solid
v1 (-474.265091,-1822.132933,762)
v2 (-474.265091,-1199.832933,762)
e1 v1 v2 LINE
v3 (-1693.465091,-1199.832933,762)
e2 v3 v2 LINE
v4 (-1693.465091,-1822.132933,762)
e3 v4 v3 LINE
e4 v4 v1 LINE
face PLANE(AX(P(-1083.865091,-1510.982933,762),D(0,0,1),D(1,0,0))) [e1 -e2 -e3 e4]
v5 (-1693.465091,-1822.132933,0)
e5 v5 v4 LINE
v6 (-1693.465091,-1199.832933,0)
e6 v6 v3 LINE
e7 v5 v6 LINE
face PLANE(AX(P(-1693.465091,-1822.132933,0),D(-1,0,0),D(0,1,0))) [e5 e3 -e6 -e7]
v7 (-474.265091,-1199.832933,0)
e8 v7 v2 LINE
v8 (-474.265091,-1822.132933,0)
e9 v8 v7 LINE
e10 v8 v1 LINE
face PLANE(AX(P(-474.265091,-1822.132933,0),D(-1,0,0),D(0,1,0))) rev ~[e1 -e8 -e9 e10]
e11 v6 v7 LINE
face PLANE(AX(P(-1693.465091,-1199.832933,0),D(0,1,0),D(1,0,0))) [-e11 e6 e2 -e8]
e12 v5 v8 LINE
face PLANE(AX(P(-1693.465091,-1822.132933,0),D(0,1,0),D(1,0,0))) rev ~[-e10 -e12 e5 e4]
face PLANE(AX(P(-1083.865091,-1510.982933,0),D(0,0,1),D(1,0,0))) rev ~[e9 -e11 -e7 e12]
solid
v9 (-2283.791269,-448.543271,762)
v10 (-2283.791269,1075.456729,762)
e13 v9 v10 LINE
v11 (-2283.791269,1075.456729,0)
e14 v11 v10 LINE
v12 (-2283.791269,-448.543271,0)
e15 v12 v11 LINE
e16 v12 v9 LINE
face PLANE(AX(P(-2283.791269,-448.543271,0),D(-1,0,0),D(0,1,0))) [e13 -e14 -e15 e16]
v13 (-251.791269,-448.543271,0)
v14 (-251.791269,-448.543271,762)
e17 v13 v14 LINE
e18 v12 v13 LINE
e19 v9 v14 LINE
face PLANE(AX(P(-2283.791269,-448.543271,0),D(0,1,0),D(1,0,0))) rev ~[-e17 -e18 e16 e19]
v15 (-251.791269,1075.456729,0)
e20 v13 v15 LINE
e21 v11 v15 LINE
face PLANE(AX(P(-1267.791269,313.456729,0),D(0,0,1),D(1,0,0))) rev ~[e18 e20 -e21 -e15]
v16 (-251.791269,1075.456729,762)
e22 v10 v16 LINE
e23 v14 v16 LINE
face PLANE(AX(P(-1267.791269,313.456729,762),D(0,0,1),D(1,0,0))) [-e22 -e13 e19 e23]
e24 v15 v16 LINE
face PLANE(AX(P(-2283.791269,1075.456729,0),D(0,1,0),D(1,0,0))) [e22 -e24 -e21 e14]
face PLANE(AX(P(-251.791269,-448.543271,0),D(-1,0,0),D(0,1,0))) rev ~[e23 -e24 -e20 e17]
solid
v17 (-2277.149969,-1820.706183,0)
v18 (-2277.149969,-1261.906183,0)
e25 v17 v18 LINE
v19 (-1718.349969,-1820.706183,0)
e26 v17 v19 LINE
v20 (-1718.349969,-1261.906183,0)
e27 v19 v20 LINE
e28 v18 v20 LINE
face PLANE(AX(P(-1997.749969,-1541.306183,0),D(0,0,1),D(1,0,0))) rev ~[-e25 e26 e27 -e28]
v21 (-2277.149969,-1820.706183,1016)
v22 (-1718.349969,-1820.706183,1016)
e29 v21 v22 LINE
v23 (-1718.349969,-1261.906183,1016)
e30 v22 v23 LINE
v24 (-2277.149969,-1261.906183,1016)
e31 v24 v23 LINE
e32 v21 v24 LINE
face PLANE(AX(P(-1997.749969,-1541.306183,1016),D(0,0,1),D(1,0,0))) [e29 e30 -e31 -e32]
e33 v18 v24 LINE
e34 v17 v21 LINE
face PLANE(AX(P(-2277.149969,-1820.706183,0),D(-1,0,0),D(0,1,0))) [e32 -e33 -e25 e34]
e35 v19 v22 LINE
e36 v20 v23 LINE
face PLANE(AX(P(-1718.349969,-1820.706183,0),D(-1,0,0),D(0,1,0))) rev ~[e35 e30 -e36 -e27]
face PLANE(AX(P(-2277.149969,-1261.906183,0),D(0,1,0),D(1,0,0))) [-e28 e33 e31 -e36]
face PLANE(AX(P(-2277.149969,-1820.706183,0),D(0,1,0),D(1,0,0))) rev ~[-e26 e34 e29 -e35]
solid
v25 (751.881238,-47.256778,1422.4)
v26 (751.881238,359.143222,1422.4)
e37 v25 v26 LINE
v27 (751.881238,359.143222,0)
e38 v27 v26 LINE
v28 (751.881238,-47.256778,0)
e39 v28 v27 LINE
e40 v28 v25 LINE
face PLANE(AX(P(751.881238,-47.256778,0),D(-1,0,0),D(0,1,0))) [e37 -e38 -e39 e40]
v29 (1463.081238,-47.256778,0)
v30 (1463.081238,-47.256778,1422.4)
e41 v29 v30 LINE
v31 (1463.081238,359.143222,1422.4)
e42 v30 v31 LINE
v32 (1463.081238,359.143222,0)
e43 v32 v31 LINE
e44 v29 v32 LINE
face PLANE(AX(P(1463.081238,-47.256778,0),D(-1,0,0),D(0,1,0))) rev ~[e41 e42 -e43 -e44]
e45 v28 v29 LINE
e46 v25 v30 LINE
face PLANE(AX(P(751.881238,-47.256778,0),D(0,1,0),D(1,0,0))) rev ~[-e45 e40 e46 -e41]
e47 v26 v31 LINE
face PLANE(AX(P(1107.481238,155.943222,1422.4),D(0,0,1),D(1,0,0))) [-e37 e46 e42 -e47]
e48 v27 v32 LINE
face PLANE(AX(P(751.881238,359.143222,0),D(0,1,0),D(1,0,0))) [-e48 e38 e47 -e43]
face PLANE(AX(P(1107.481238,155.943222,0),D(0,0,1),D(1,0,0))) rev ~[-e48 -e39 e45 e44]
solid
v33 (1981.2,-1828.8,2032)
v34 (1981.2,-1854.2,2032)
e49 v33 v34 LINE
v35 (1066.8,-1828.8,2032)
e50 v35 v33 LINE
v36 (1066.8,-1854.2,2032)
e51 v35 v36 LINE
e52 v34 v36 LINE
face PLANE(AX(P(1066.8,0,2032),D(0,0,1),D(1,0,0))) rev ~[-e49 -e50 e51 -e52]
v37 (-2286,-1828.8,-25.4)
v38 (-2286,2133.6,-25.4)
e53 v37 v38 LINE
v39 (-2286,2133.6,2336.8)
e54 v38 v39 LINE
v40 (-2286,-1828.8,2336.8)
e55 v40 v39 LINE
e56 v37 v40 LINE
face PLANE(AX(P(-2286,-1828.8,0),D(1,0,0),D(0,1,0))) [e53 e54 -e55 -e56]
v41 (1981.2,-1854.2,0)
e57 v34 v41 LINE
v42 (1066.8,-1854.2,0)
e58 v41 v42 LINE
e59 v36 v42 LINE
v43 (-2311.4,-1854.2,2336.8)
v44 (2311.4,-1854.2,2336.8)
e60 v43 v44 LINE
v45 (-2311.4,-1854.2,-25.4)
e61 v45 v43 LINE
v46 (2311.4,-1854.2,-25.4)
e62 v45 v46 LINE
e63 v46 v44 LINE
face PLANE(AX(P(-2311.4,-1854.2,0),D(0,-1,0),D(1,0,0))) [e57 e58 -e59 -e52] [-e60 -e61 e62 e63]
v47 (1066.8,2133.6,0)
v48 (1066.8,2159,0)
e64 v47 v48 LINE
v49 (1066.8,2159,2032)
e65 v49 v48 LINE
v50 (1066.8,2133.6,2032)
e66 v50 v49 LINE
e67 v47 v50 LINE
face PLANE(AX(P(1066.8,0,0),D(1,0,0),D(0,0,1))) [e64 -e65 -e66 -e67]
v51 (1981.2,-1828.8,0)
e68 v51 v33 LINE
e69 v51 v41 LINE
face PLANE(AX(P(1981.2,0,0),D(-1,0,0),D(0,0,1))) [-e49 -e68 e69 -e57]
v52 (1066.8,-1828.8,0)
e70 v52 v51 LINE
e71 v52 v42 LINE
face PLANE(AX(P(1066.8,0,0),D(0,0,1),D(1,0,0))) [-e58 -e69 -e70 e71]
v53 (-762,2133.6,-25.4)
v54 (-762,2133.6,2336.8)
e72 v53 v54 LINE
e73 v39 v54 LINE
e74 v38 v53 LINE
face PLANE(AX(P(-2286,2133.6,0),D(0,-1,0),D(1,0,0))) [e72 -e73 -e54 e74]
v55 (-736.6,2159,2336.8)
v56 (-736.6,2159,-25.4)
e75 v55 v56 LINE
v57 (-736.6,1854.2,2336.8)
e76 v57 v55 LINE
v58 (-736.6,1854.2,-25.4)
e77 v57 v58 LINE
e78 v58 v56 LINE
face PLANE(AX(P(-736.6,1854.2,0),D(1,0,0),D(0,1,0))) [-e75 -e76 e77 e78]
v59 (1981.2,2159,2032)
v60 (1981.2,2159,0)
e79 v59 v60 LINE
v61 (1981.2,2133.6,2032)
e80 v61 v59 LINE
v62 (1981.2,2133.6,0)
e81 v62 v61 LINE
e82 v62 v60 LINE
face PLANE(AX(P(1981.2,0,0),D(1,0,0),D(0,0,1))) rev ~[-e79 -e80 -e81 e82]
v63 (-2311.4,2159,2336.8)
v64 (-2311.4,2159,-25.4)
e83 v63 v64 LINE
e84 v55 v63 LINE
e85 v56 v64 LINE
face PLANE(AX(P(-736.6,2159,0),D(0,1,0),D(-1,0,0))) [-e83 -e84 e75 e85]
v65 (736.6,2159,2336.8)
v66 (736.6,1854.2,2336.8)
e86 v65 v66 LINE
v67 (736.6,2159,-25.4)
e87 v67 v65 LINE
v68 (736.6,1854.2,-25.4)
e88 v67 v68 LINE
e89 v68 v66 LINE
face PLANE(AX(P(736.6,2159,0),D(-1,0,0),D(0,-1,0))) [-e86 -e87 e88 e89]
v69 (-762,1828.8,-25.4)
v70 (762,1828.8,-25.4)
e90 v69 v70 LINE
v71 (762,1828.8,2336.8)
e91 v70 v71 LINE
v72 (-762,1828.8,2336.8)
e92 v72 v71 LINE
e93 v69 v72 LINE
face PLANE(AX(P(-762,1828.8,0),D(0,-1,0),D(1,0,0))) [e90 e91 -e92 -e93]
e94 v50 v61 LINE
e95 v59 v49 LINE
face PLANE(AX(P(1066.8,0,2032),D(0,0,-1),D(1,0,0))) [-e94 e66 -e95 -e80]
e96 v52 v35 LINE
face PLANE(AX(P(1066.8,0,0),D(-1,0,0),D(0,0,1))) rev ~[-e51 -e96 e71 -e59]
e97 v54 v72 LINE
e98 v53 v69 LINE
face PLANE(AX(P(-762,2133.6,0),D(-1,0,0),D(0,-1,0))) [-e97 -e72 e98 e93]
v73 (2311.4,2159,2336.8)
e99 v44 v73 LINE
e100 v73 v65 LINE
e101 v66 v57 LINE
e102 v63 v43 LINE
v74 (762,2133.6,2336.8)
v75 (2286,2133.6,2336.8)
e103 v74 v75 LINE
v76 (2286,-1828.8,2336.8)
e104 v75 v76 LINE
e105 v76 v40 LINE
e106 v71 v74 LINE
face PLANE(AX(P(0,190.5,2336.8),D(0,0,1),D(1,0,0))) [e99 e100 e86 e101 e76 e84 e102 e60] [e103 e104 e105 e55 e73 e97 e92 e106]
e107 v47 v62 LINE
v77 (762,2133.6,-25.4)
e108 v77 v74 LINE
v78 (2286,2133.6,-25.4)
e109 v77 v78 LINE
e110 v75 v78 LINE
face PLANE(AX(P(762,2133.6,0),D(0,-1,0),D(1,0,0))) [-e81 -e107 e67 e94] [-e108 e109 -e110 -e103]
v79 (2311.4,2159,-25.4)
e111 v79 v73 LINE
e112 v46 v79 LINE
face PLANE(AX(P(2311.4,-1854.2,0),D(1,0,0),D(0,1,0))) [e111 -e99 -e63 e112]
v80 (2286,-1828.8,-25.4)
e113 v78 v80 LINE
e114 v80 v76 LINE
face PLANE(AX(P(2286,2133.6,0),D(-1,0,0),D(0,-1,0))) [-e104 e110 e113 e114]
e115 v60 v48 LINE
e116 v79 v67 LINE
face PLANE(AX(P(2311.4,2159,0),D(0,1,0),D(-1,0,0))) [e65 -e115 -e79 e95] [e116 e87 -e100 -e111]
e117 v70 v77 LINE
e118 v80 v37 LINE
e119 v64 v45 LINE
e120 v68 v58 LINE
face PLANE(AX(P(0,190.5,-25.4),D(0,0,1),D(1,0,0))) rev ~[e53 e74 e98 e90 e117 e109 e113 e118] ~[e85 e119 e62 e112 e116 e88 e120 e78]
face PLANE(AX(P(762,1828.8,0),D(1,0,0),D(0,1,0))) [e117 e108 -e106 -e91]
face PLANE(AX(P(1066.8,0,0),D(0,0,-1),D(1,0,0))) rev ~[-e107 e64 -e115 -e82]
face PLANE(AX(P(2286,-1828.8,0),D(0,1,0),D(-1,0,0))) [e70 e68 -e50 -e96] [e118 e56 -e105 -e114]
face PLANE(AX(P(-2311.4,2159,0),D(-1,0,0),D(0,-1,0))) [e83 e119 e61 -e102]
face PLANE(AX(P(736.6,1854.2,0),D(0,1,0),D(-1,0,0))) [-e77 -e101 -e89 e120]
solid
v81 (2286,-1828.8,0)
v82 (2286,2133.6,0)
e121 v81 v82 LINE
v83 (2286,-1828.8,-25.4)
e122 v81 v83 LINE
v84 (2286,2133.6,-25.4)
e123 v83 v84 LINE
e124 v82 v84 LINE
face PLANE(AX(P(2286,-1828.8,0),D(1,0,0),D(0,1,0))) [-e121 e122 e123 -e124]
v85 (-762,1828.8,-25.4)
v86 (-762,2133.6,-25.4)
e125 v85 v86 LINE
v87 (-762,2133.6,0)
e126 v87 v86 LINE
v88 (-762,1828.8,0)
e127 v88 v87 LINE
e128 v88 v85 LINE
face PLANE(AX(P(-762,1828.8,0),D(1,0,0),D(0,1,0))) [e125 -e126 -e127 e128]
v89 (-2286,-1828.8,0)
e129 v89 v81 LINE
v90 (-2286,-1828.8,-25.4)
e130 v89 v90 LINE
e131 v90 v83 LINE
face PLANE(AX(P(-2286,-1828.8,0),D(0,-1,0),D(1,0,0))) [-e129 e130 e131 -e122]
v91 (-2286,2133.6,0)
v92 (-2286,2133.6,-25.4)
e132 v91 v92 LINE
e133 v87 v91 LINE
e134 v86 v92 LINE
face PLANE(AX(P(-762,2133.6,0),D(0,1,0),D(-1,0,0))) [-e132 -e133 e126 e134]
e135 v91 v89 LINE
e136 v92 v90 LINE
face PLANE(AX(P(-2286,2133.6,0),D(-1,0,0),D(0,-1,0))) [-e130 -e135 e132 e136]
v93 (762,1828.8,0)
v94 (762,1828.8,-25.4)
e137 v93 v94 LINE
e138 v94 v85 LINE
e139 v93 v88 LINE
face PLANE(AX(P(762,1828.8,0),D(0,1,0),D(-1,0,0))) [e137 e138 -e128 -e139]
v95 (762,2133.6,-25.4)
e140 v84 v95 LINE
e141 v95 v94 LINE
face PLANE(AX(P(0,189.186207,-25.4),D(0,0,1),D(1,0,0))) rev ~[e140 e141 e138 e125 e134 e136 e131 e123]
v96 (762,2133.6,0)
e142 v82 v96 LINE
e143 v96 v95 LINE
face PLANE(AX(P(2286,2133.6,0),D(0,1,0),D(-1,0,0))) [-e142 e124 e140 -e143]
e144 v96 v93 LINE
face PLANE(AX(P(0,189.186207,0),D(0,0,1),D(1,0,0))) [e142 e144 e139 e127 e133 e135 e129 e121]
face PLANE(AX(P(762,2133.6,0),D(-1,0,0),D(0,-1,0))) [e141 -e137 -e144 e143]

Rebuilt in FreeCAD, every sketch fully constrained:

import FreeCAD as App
import Part
import Sketcher

V = App.Vector
Q = App.Units.Quantity


def add_polygon(sketch, points):
    """Adds a closed chain of lines whose ends are joined by coincident constraints."""
    first, n = sketch.GeometryCount, len(points)
    for a, b in zip(points, points[1:] + points[:1]):
        sketch.addGeometry(Part.LineSegment(App.Vector(*a, 0), App.Vector(*b, 0)), False)
    for i in range(n):
        sketch.addConstraint(Sketcher.Constraint("Coincident", first + i, 2, first + (i + 1) % n, 1))

doc = App.newDocument("Part")
body = doc.addObject("PartDesign::Body", "Body")

sketch1 = body.newObject("Sketcher::SketchObject", "Sketch")
sketch1.AttachmentSupport = (doc.getObject("XY_Plane"), [""])
sketch1.MapMode = "FlatFace"
add_polygon(sketch1, [(-2286, -1829), (2286, -1829), (2286, 2134), (762, 2134), (762, 1829), (-762, 1829), (-762, 2134), (-2286, 2134)])
sketch1.addConstraint([
    Sketcher.Constraint("Horizontal", 0),
    Sketcher.Constraint("Vertical", 1),
    Sketcher.Constraint("Horizontal", 2),
    Sketcher.Constraint("Vertical", 3),
    Sketcher.Constraint("Horizontal", 4),
    Sketcher.Constraint("Vertical", 5),
    Sketcher.Constraint("Horizontal", 6),
    Sketcher.Constraint("Vertical", 7),
    Sketcher.Constraint("Symmetric", 2, 2, 5, 2, -2),
    Sketcher.Constraint("Equal", 2, 4),
    Sketcher.Constraint("Equal", 4, 6),
    Sketcher.Constraint("DistanceX", 0, 1, 0, 2, Q("180 in")),
    Sketcher.Constraint("DistanceY", 1, 1, 1, 2, Q("156 in")),
    Sketcher.Constraint("DistanceY", 3, 2, 3, 1, Q("12 in")),
    Sketcher.Constraint("DistanceY", 0, 2, -1, 1, Q("72 in")),
])
pad1 = body.newObject("PartDesign::Pad", "Pad")
pad1.Profile = sketch1
pad1.Length = Q("1 in")
pad1.Reversed = True
body2 = doc.addObject("PartDesign::Body", "Body001")

sketch2 = body2.newObject("Sketcher::SketchObject", "Sketch001")
sketch2.AttachmentSupport = (doc.getObject("XY_Plane001"), [""])
sketch2.MapMode = "FlatFace"
add_polygon(sketch2, [(-2311, 2159), (-2311, -1854), (2311, -1854), (2311, 2159), (737, 2159), (737, 1854), (-737, 1854), (-737, 2159)])
add_polygon(sketch2, [(2286, 2134), (2286, -1829), (-2286, -1829), (-2286, 2134), (-762, 2134), (-762, 1829), (762, 1829), (762, 2134)])
sketch2.addConstraint([
    Sketcher.Constraint("Vertical", 0),
    Sketcher.Constraint("Horizontal", 1),
    Sketcher.Constraint("Vertical", 2),
    Sketcher.Constraint("Horizontal", 3),
    Sketcher.Constraint("Vertical", 4),
    Sketcher.Constraint("Horizontal", 5),
    Sketcher.Constraint("Vertical", 6),
    Sketcher.Constraint("Horizontal", 7),
    Sketcher.Constraint("Vertical", 8),
    Sketcher.Constraint("Horizontal", 9),
    Sketcher.Constraint("Vertical", 10),
    Sketcher.Constraint("Horizontal", 11),
    Sketcher.Constraint("Vertical", 12),
    Sketcher.Constraint("Horizontal", 13),
    Sketcher.Constraint("Vertical", 14),
    Sketcher.Constraint("Horizontal", 15),
    Sketcher.Constraint("Symmetric", 3, 2, 6, 2, -2),
    Sketcher.Constraint("Symmetric", 11, 2, 14, 2, -2),
    Sketcher.Constraint("Equal", 3, 7),
    Sketcher.Constraint("Equal", 11, 13),
    Sketcher.Constraint("Equal", 13, 15),
    Sketcher.Constraint("Equal", 6, 12),
    Sketcher.Constraint("DistanceX", 1, 1, 1, 2, Q("182 in")),
    Sketcher.Constraint("DistanceX", 3, 2, 3, 1, Q("62 in")),
    Sketcher.Constraint("DistanceX", 9, 2, 9, 1, Q("180 in")),
    Sketcher.Constraint("DistanceY", 0, 2, 0, 1, Q("158 in")),
    Sketcher.Constraint("DistanceY", 4, 2, 4, 1, Q("12 in")),
    Sketcher.Constraint("DistanceY", 8, 2, 8, 1, Q("156 in")),
    Sketcher.Constraint("DistanceY", 0, 2, -1, 1, Q("73 in")),
    Sketcher.Constraint("DistanceY", 8, 2, -1, 1, Q("72 in")),
])
pad2 = body2.newObject("PartDesign::Pad", "Pad001")
pad2.Profile = sketch2
pad2.Type = "TwoLengths"
pad2.Length = Q("92 in")
pad2.Length2 = Q("1 in")

sketch3 = body2.newObject("Sketcher::SketchObject", "Sketch002")
sketch3.AttachmentSupport = (doc.getObject("XZ_Plane001"), [""])
sketch3.MapMode = "FlatFace"
add_polygon(sketch3, [(1067, 2032), (1067, 0), (1981, 0), (1981, 2032)])
sketch3.addConstraint([
    Sketcher.Constraint("Vertical", 0),
    Sketcher.Constraint("Horizontal", 1),
    Sketcher.Constraint("Vertical", 2),
    Sketcher.Constraint("Horizontal", 3),
    Sketcher.Constraint("PointOnObject", 0, 2, -1),
    Sketcher.Constraint("DistanceX", 1, 1, 1, 2, Q("36 in")),
    Sketcher.Constraint("DistanceY", 0, 2, 0, 1, Q("80 in")),
    Sketcher.Constraint("DistanceX", -1, 1, 0, 2, Q("42 in")),
])
pocket1 = body2.newObject("PartDesign::Pocket", "Pocket")
pocket1.Profile = sketch3
pocket1.Type = "ThroughAll"
pocket1.Midplane = True
body3 = doc.addObject("PartDesign::Body", "Body002")

sketch4 = body3.newObject("Sketcher::SketchObject", "Sketch003")
sketch4.AttachmentSupport = (doc.getObject("XY_Plane002"), [""])
sketch4.MapMode = "FlatFace"
add_polygon(sketch4, [(-2284, 1075), (-2284, -449), (-252, -449), (-252, 1075)])
sketch4.addConstraint([
    Sketcher.Constraint("Vertical", 0),
    Sketcher.Constraint("Horizontal", 1),
    Sketcher.Constraint("Vertical", 2),
    Sketcher.Constraint("Horizontal", 3),
    Sketcher.Constraint("DistanceX", 1, 1, 1, 2, Q("80 in")),
    Sketcher.Constraint("DistanceY", 0, 2, 0, 1, Q("60 in")),
    Sketcher.Constraint("DistanceX", 0, 2, -1, 1, Q("2283.791269 mm")),
    Sketcher.Constraint("DistanceY", 0, 2, -1, 1, Q("448.543271 mm")),
])
pad3 = body3.newObject("PartDesign::Pad", "Pad002")
pad3.Profile = sketch4
pad3.Length = Q("30 in")
body4 = doc.addObject("PartDesign::Body", "Body003")

sketch5 = body4.newObject("Sketcher::SketchObject", "Sketch004")
sketch5.AttachmentSupport = (doc.getObject("XY_Plane003"), [""])
sketch5.MapMode = "FlatFace"
add_polygon(sketch5, [(-1693, -1200), (-1693, -1822), (-474, -1822), (-474, -1200)])
sketch5.addConstraint([
    Sketcher.Constraint("Vertical", 0),
    Sketcher.Constraint("Horizontal", 1),
    Sketcher.Constraint("Vertical", 2),
    Sketcher.Constraint("Horizontal", 3),
    Sketcher.Constraint("DistanceX", 1, 1, 1, 2, Q("48 in")),
    Sketcher.Constraint("DistanceY", 0, 2, 0, 1, Q("24.5 in")),
    Sketcher.Constraint("DistanceX", 0, 2, -1, 1, Q("1693.465091 mm")),
    Sketcher.Constraint("DistanceY", 0, 2, -1, 1, Q("1822.132933 mm")),
])
pad4 = body4.newObject("PartDesign::Pad", "Pad003")
pad4.Profile = sketch5
pad4.Length = Q("30 in")
body5 = doc.addObject("PartDesign::Body", "Body004")

sketch6 = body5.newObject("Sketcher::SketchObject", "Sketch005")
sketch6.AttachmentSupport = (doc.getObject("XY_Plane004"), [""])
sketch6.MapMode = "FlatFace"
add_polygon(sketch6, [(752, 359), (752, -47), (1463, -47), (1463, 359)])
sketch6.addConstraint([
    Sketcher.Constraint("Vertical", 0),
    Sketcher.Constraint("Horizontal", 1),
    Sketcher.Constraint("Vertical", 2),
    Sketcher.Constraint("Horizontal", 3),
    Sketcher.Constraint("DistanceX", 1, 1, 1, 2, Q("28 in")),
    Sketcher.Constraint("DistanceY", 0, 2, 0, 1, Q("16 in")),
    Sketcher.Constraint("DistanceX", -1, 1, 0, 2, Q("751.881238 mm")),
    Sketcher.Constraint("DistanceY", 0, 2, -1, 1, Q("47.256778 mm")),
])
pad5 = body5.newObject("PartDesign::Pad", "Pad004")
pad5.Profile = sketch6
pad5.Length = Q("56 in")
body6 = doc.addObject("PartDesign::Body", "Body005")

sketch7 = body6.newObject("Sketcher::SketchObject", "Sketch006")
sketch7.AttachmentSupport = (doc.getObject("XY_Plane005"), [""])
sketch7.MapMode = "FlatFace"
add_polygon(sketch7, [(-2277, -1262), (-2277, -1821), (-1718, -1821), (-1718, -1262)])
sketch7.addConstraint([
    Sketcher.Constraint("Vertical", 0),
    Sketcher.Constraint("Horizontal", 1),
    Sketcher.Constraint("Vertical", 2),
    Sketcher.Constraint("Horizontal", 3),
    Sketcher.Constraint("Equal", 3, 0),
    Sketcher.Constraint("DistanceX", 1, 1, 1, 2, Q("22 in")),
    Sketcher.Constraint("DistanceX", 0, 2, -1, 1, Q("2277.149969 mm")),
    Sketcher.Constraint("DistanceY", 0, 2, -1, 1, Q("1820.706183 mm")),
])
pad6 = body6.newObject("PartDesign::Pad", "Pad005")
pad6.Profile = sketch7
pad6.Length = Q("40 in")

doc.recompute()
